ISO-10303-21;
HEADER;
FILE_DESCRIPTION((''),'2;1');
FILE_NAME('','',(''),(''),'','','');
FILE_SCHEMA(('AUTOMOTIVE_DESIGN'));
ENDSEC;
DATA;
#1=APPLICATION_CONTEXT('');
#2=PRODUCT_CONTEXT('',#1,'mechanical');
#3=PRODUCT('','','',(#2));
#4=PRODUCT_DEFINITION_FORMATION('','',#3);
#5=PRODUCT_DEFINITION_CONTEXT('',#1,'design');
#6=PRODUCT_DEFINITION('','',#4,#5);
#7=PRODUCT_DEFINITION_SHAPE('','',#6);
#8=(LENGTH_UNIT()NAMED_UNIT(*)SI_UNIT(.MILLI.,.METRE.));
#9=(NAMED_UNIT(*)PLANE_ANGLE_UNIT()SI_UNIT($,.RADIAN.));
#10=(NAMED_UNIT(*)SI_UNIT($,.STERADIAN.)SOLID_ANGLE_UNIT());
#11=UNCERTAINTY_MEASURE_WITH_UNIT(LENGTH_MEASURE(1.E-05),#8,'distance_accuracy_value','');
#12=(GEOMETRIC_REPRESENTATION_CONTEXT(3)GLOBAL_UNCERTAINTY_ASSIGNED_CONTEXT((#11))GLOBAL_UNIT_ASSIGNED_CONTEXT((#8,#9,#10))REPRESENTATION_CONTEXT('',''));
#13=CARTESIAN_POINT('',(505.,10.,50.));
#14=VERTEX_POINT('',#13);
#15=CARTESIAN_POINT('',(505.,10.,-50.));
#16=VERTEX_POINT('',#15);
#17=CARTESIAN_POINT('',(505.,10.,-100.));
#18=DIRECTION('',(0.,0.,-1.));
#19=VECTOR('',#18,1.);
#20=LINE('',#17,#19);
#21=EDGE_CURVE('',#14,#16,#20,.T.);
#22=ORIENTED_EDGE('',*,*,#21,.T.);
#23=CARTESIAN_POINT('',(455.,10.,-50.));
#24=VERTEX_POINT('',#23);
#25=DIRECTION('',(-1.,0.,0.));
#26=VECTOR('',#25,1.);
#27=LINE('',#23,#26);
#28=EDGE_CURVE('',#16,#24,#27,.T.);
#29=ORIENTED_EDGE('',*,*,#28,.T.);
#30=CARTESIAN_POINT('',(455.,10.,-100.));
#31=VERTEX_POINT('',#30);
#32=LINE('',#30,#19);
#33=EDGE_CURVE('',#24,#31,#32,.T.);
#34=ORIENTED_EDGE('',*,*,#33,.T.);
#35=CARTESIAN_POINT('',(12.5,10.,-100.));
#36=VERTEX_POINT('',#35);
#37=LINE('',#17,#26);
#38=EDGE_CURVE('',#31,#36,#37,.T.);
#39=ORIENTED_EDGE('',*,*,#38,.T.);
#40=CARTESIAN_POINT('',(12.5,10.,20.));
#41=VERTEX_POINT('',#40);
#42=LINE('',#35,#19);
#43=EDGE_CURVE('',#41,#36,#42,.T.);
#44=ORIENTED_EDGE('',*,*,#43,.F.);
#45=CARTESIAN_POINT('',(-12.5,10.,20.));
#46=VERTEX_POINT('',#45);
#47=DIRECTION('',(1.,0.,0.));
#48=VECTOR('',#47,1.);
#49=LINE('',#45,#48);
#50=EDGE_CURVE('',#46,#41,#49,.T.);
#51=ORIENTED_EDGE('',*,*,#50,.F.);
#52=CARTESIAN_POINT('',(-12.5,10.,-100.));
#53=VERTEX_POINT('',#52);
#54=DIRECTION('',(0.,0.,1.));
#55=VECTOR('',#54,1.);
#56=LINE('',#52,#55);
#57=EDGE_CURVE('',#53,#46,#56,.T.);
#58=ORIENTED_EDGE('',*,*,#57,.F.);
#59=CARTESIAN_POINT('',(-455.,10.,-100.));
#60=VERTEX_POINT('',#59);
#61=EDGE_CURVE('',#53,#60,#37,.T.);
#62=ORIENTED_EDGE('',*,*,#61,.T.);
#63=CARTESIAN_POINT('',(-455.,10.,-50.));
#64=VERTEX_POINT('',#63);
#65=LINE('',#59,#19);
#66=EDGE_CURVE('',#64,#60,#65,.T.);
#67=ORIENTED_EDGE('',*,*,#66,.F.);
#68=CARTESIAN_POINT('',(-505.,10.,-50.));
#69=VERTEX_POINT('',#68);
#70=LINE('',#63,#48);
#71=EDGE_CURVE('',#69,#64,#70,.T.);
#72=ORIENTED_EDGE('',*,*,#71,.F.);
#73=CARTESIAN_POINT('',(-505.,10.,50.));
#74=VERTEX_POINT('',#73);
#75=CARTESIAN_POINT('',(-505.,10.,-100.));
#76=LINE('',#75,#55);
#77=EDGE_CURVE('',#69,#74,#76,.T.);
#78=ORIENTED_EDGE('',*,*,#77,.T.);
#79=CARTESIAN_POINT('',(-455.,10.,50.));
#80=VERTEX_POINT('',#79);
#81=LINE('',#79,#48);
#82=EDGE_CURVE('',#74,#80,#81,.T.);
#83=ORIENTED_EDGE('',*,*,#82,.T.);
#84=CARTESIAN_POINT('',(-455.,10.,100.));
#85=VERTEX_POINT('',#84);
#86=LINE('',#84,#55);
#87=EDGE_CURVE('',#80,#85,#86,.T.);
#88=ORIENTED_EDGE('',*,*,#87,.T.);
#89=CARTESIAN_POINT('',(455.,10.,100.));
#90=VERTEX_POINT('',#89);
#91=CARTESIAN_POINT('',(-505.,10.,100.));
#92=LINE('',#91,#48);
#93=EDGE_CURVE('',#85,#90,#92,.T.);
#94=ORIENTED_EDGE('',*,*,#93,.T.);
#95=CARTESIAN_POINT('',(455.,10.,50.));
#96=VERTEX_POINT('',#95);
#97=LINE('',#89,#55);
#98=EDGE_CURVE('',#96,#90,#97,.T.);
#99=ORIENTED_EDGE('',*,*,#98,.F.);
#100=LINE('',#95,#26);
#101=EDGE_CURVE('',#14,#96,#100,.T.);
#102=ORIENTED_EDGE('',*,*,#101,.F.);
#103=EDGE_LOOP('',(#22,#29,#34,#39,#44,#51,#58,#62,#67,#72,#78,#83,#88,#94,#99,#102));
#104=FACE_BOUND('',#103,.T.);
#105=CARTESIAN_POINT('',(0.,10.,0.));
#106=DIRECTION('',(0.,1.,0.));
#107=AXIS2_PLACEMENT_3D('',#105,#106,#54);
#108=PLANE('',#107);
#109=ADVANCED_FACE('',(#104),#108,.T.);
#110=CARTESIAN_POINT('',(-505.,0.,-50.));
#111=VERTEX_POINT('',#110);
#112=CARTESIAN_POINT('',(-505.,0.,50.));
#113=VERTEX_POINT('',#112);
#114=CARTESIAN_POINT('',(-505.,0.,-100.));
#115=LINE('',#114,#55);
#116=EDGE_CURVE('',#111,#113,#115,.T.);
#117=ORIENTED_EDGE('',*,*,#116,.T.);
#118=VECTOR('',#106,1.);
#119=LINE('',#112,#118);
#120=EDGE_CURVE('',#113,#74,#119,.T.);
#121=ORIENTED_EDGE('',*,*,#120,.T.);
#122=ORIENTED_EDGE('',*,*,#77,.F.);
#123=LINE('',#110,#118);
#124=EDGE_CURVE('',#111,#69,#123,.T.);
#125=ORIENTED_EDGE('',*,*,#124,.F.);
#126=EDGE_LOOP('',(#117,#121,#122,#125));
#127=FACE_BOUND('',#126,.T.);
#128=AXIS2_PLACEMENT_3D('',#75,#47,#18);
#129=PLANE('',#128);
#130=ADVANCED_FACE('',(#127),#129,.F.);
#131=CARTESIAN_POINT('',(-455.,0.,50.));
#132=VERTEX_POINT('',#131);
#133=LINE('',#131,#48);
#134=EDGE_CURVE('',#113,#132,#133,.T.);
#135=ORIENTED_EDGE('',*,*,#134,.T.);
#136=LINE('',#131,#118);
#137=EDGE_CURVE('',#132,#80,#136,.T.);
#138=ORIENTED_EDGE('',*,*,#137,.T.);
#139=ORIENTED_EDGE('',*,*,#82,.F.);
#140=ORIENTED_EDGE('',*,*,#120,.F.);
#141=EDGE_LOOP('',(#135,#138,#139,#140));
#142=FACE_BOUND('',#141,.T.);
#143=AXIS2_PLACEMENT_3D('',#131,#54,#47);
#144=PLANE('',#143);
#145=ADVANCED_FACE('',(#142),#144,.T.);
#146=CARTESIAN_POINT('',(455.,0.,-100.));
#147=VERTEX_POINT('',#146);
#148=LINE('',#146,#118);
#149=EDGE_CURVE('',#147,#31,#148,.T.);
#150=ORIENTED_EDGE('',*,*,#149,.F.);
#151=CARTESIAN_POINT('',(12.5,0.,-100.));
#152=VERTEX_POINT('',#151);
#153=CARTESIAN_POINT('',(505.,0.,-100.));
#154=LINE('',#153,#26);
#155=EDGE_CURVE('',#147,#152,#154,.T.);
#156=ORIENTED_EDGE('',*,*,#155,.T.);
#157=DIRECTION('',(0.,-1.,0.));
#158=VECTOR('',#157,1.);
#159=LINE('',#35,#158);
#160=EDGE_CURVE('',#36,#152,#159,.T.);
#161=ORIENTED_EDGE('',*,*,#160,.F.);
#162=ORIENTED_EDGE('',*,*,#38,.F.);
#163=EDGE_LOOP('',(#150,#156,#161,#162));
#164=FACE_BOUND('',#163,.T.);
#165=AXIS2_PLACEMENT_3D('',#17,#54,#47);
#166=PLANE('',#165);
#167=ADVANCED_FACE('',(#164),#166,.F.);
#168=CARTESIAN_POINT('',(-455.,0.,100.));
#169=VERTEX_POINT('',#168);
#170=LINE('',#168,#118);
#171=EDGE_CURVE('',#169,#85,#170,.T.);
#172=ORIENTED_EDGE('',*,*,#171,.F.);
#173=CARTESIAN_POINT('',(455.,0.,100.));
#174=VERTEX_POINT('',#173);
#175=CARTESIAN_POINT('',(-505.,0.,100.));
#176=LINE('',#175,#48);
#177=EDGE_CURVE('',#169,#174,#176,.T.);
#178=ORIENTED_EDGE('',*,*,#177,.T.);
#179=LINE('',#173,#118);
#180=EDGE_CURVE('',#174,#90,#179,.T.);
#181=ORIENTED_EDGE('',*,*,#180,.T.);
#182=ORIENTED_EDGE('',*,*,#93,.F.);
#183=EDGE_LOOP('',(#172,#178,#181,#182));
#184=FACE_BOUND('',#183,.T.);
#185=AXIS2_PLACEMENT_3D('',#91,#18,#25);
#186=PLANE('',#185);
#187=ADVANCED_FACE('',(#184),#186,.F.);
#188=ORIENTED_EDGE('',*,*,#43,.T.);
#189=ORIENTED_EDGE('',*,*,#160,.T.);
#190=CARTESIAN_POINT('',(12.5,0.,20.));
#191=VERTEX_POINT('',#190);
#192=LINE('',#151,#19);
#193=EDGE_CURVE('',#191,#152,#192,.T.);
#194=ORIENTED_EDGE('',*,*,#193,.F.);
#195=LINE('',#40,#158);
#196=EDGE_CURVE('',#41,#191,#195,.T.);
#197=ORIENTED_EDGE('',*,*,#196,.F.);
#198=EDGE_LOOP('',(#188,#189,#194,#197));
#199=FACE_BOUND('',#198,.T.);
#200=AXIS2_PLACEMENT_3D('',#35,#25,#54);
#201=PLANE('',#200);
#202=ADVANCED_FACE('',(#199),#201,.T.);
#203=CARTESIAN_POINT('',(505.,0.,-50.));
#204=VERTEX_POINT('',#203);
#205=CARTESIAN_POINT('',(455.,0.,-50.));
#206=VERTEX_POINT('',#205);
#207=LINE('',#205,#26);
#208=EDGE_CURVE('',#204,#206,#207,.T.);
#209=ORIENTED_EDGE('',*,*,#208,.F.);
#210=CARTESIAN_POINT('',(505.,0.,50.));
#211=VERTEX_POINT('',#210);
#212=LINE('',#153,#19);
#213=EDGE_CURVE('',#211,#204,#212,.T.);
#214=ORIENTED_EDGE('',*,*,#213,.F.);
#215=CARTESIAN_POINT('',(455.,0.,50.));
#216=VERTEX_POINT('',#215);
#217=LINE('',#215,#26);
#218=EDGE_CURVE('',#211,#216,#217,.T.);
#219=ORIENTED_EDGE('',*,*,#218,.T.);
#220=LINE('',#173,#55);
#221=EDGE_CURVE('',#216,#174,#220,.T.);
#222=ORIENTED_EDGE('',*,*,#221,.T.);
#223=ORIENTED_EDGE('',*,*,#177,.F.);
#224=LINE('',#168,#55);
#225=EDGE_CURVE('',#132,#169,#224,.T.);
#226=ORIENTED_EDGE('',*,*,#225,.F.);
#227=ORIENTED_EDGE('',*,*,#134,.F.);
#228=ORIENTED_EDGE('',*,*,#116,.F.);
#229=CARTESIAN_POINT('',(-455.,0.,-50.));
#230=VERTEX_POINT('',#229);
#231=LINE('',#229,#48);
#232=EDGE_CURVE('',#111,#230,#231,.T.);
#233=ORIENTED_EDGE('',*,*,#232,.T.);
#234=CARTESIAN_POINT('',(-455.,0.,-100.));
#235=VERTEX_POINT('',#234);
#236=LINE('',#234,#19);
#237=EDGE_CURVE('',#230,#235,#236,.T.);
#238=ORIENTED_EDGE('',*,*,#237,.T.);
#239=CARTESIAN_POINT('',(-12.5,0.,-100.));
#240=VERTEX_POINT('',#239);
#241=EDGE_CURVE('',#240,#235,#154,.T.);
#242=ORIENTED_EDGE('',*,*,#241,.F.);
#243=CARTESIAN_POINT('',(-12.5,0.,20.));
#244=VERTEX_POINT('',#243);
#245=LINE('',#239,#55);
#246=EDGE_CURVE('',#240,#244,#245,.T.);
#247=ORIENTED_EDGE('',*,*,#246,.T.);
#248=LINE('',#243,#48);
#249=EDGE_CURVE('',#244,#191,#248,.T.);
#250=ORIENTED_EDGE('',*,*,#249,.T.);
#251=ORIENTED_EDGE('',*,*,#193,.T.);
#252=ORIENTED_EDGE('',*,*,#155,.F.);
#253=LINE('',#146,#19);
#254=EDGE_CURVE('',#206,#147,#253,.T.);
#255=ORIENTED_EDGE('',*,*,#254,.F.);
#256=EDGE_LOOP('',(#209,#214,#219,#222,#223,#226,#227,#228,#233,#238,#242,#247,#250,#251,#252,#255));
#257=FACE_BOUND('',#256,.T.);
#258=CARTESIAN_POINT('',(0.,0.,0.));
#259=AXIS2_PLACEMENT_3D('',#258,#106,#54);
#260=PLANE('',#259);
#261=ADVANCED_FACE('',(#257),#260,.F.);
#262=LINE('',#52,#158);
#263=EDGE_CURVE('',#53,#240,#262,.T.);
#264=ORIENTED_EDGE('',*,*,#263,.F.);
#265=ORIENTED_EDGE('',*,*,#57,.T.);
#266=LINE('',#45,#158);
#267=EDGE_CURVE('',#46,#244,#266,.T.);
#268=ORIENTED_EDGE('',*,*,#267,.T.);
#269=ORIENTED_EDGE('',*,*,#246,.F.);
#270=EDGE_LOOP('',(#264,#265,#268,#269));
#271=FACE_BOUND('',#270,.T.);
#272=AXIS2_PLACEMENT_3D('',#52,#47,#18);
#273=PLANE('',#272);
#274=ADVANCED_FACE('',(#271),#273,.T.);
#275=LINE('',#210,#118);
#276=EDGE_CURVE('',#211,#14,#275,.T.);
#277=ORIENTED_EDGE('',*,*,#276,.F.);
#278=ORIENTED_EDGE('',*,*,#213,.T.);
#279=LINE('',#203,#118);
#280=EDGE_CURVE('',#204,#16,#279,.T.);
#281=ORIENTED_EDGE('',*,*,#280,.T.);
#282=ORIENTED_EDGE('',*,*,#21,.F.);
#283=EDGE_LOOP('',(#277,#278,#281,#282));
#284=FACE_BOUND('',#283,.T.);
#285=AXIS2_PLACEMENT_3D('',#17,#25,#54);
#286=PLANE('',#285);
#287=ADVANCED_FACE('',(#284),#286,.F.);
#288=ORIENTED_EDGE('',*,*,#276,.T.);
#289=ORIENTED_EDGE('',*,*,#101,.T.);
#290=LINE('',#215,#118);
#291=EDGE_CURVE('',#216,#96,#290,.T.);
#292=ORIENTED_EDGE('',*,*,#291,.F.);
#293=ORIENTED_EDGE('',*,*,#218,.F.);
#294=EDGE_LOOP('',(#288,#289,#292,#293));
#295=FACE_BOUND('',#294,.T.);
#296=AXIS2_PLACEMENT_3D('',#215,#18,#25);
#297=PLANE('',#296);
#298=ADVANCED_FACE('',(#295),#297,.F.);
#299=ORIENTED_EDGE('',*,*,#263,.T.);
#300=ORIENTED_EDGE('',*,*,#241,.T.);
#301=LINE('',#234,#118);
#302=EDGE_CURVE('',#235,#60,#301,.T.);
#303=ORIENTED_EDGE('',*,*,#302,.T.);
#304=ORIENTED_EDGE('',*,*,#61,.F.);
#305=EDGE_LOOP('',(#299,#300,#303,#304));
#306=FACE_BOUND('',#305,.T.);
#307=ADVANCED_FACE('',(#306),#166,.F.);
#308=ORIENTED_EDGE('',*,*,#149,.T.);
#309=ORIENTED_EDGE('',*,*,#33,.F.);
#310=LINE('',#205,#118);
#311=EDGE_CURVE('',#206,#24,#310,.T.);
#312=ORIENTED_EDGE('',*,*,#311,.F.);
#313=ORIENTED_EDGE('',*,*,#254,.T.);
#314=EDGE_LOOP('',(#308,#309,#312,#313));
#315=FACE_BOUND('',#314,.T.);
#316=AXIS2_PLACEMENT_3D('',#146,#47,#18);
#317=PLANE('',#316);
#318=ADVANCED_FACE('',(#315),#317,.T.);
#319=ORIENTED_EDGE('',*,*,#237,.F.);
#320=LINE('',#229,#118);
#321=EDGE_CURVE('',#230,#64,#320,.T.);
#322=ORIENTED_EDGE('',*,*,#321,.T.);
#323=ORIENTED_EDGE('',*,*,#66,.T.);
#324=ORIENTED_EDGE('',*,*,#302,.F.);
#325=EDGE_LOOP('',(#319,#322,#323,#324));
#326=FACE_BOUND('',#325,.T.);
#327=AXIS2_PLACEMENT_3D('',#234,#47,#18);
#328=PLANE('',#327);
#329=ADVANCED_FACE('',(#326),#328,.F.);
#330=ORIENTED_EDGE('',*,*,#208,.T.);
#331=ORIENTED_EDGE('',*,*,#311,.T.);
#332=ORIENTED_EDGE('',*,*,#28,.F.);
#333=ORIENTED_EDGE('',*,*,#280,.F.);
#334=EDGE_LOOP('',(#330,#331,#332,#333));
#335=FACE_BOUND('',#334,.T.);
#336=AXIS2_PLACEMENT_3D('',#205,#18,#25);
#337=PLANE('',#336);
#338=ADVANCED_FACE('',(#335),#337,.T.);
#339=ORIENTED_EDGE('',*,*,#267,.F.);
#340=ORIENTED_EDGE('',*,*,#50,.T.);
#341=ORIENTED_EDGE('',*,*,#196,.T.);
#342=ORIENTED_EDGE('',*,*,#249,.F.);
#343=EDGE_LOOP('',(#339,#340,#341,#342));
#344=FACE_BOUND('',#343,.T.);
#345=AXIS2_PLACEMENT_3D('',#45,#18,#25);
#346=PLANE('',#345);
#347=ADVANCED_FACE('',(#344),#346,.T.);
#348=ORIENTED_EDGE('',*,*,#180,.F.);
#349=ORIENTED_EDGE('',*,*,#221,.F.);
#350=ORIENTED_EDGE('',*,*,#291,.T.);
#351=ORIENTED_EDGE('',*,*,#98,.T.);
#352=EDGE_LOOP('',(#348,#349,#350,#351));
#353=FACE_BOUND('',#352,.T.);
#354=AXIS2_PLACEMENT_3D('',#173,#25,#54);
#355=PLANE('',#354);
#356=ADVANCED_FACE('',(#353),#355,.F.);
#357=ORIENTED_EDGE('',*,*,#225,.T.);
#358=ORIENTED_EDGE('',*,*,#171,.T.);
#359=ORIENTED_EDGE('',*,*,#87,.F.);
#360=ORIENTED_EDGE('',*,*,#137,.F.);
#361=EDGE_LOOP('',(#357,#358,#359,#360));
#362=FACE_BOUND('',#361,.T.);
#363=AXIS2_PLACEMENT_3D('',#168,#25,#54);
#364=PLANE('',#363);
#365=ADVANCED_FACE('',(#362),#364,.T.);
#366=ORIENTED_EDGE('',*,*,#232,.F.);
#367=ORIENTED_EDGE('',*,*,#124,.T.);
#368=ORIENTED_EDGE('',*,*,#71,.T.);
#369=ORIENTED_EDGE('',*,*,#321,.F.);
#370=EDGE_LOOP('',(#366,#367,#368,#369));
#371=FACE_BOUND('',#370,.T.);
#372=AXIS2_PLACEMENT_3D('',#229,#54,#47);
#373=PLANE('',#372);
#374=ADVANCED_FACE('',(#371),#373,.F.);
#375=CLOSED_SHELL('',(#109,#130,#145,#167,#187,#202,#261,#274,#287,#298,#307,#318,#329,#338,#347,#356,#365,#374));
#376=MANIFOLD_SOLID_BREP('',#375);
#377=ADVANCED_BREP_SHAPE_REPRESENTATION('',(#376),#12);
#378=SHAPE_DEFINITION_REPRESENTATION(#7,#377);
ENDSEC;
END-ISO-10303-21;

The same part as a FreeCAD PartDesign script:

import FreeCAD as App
import Part
import Sketcher


def add_polygon(sketch, points):
    """Adds a closed chain of lines whose ends are joined by coincident constraints."""
    first, n = sketch.GeometryCount, len(points)
    for a, b in zip(points, points[1:] + points[:1]):
        sketch.addGeometry(Part.LineSegment(App.Vector(*a, 0), App.Vector(*b, 0)), False)
    for i in range(n):
        sketch.addConstraint(Sketcher.Constraint("Coincident", first + i, 2, first + (i + 1) % n, 1))

doc = App.newDocument("Part")
params = doc.addObject("Spreadsheet::Sheet", "Params")
for row, (alias, value) in enumerate([
    ("sketch1_width", "1010 mm"),
    ("sketch1_height", "200 mm"),
    ("pad1_length", "10 mm"),
    ("sketch2_width", "50 mm"),
    ("pocket1_length", "10 mm"),
    ("sketch3_width", "50 mm"),
    ("pocket2_length", "10 mm"),
    ("sketch4_width", "25 mm"),
    ("sketch4_height", "120 mm"),
    ("pocket3_length", "10 mm"),
], start=1):
    params.set(f"A{row}", alias)
    params.set(f"B{row}", "=" + value)
    params.setAlias(f"B{row}", alias)

body = doc.addObject("PartDesign::Body", "Body")

sketch1 = body.newObject("Sketcher::SketchObject", "Sketch")
sketch1.AttachmentSupport = (doc.getObject("XZ_Plane"), [""])
sketch1.MapMode = "FlatFace"
add_polygon(sketch1, [(-505, -100), (-505, 100), (505, 100), (505, -100)])
sketch1.addConstraint(Sketcher.Constraint("Vertical", 0))
sketch1.addConstraint(Sketcher.Constraint("Horizontal", 1))
sketch1.addConstraint(Sketcher.Constraint("Vertical", 2))
sketch1.addConstraint(Sketcher.Constraint("Horizontal", 3))
sketch1.addConstraint(Sketcher.Constraint("Symmetric", 0, 2, 2, 2, -1, 1))
sketch1.addConstraint(Sketcher.Constraint("DistanceX", 1, 1, 1, 2, 1010.0))
sketch1.addConstraint(Sketcher.Constraint("DistanceY", 0, 1, 0, 2, 200.0))
sketch1.setExpression("Constraints[9]", "Params.sketch1_width")
sketch1.setExpression("Constraints[10]", "Params.sketch1_height")
pad1 = body.newObject("PartDesign::Pad", "Pad")
pad1.Profile = sketch1
pad1.setExpression("Length", "Params.pad1_length")
pad1.Reversed = True

sketch2 = body.newObject("Sketcher::SketchObject", "Sketch001")
sketch2.AttachmentSupport = (doc.getObject("XZ_Plane"), [""])
sketch2.MapMode = "FlatFace"
sketch2.AttachmentOffset = App.Placement(App.Vector(0, 0, -10), App.Rotation())
add_polygon(sketch2, [(-505, -100), (-505, -50), (-455, -50), (-455, -100)])
sketch2.addConstraint(Sketcher.Constraint("Vertical", 0))
sketch2.addConstraint(Sketcher.Constraint("Horizontal", 1))
sketch2.addConstraint(Sketcher.Constraint("Vertical", 2))
sketch2.addConstraint(Sketcher.Constraint("Horizontal", 3))
sketch2.addConstraint(Sketcher.Constraint("Equal", 3, 0))
sketch2.addConstraint(Sketcher.Constraint("DistanceX", 1, 1, 1, 2, 50.0))
sketch2.addConstraint(Sketcher.Constraint("DistanceX", 0, 2, -1, 1, 505.0))
sketch2.addConstraint(Sketcher.Constraint("DistanceY", 0, 2, -1, 1, 50.0))
sketch2.setExpression("Constraints[9]", "Params.sketch2_width")
pocket1 = body.newObject("PartDesign::Pocket", "Pocket")
pocket1.Profile = sketch2
pocket1.setExpression("Length", "Params.pocket1_length")
pocket1.Reversed = True
doc.recompute()

mirrored = body.newObject("PartDesign::Mirrored", "Mirrored")
mirrored.Originals = [pocket1]
mirrored.MirrorPlane = (doc.getObject("XY_Plane"), [""])
body.Tip = mirrored
doc.recompute()

mirrored2 = body.newObject("PartDesign::Mirrored", "Mirrored001")
mirrored2.Originals = [pocket1]
mirrored2.MirrorPlane = (doc.getObject("YZ_Plane"), [""])
body.Tip = mirrored2

sketch3 = body.newObject("Sketcher::SketchObject", "Sketch002")
sketch3.AttachmentSupport = (doc.getObject("XZ_Plane"), [""])
sketch3.MapMode = "FlatFace"
sketch3.AttachmentOffset = App.Placement(App.Vector(0, 0, -10), App.Rotation())
add_polygon(sketch3, [(505, 100), (505, 50), (455, 50), (455, 100)])
sketch3.addConstraint(Sketcher.Constraint("Vertical", 0))
sketch3.addConstraint(Sketcher.Constraint("Horizontal", 1))
sketch3.addConstraint(Sketcher.Constraint("Vertical", 2))
sketch3.addConstraint(Sketcher.Constraint("Horizontal", 3))
sketch3.addConstraint(Sketcher.Constraint("Equal", 3, 0))
sketch3.addConstraint(Sketcher.Constraint("DistanceX", 1, 2, 1, 1, 50.0))
sketch3.addConstraint(Sketcher.Constraint("DistanceX", -1, 1, 0, 2, 505.0))
sketch3.addConstraint(Sketcher.Constraint("DistanceY", -1, 1, 0, 2, 50.0))
sketch3.setExpression("Constraints[9]", "Params.sketch3_width")
pocket2 = body.newObject("PartDesign::Pocket", "Pocket001")
pocket2.Profile = sketch3
pocket2.setExpression("Length", "Params.pocket2_length")
pocket2.Reversed = True

sketch4 = body.newObject("Sketcher::SketchObject", "Sketch003")
sketch4.AttachmentSupport = (doc.getObject("XZ_Plane"), [""])
sketch4.MapMode = "FlatFace"
add_polygon(sketch4, [(-12.5, -100), (-12.5, 20), (12.5, 20), (12.5, -100)])
sketch4.addConstraint(Sketcher.Constraint("Vertical", 0))
sketch4.addConstraint(Sketcher.Constraint("Horizontal", 1))
sketch4.addConstraint(Sketcher.Constraint("Vertical", 2))
sketch4.addConstraint(Sketcher.Constraint("Horizontal", 3))
sketch4.addConstraint(Sketcher.Constraint("DistanceX", 1, 1, 1, 2, 25.0))
sketch4.addConstraint(Sketcher.Constraint("DistanceY", 0, 1, 0, 2, 120.0))
sketch4.addConstraint(Sketcher.Constraint("DistanceY", -1, 1, 0, 2, 20.0))
sketch4.addConstraint(Sketcher.Constraint("DistanceX", 0, 2, -1, 1, 12.5))
sketch4.setExpression("Constraints[8]", "Params.sketch4_width")
sketch4.setExpression("Constraints[9]", "Params.sketch4_height")
pocket3 = body.newObject("PartDesign::Pocket", "Pocket002")
pocket3.Profile = sketch4
pocket3.setExpression("Length", "Params.pocket3_length")

doc.recompute()
